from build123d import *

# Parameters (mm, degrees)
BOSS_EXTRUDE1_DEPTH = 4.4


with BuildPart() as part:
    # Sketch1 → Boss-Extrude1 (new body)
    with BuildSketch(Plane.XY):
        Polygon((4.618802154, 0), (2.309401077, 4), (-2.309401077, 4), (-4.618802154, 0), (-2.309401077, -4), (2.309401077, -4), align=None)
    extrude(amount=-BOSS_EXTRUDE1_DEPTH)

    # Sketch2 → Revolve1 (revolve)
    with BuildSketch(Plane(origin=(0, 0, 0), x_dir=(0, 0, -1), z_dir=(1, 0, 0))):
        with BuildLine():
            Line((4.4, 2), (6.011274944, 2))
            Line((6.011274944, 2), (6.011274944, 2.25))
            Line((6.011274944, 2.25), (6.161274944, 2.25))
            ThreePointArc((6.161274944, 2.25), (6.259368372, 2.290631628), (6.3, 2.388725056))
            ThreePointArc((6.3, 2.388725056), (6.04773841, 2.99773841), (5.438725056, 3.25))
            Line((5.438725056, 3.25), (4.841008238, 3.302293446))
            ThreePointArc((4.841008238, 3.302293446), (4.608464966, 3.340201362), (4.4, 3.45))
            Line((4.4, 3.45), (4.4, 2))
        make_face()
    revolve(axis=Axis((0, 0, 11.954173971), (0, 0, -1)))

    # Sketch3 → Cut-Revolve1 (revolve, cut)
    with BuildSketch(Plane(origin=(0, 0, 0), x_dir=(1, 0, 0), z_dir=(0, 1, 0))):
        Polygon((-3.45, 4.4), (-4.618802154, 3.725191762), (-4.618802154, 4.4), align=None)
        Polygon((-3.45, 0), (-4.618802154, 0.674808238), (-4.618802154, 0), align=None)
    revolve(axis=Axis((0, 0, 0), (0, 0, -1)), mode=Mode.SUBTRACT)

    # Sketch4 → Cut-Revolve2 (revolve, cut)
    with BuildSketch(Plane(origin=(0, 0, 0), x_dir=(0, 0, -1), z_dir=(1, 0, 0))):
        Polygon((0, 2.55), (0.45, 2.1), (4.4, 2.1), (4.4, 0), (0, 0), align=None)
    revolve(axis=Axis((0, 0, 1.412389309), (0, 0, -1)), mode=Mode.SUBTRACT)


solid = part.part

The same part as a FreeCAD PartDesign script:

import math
import FreeCAD as App
import Part
import Sketcher

V = App.Vector
Q = App.Units.Quantity

doc = App.newDocument("Part")
body = doc.addObject("PartDesign::Body", "Body")

sketch1 = body.newObject("Sketcher::SketchObject", "Sketch")
sketch1.AttachmentSupport = (doc.getObject("XY_Plane"), [""])
sketch1.MapMode = "FlatFace"
sketch1.addGeometry([
    Part.LineSegment(V(4.6, 0, 0), V(2.3, 4, 0)),
    Part.LineSegment(V(2.3, 4, 0), V(-2.3, 4, 0)),
    Part.LineSegment(V(-2.3, 4, 0), V(-4.6, 0, 0)),
    Part.LineSegment(V(-4.6, 0, 0), V(-2.3, -4, 0)),
    Part.LineSegment(V(-2.3, -4, 0), V(2.3, -4, 0)),
    Part.LineSegment(V(2.3, -4, 0), V(4.6, 0, 0)),
], False)
sketch1.addConstraint([
    Sketcher.Constraint("Coincident", 0, 2, 1, 1),
    Sketcher.Constraint("Coincident", 1, 2, 2, 1),
    Sketcher.Constraint("Coincident", 2, 2, 3, 1),
    Sketcher.Constraint("Coincident", 3, 2, 4, 1),
    Sketcher.Constraint("Coincident", 4, 2, 5, 1),
    Sketcher.Constraint("Coincident", 5, 2, 0, 1),
    Sketcher.Constraint("Horizontal", 1),
    Sketcher.Constraint("Horizontal", 4),
    Sketcher.Constraint("Symmetric", 0, 2, 3, 2, -1, 1),
    Sketcher.Constraint("Symmetric", 2, 2, 5, 2, -1, 1),
    Sketcher.Constraint("PointOnObject", 2, 2, -1),
    Sketcher.Constraint("Parallel", 2, 5),
    Sketcher.Constraint("Vertical", 1, 2, 3, 2),
    Sketcher.Constraint("Angle", 0, Q("120 deg")),
    Sketcher.Constraint("DistanceY", -1, 1, 0, 2, Q("4 mm")),
    Sketcher.Constraint("DistanceX", -1, 1, 0, 2, Q("2.309401 mm")),
])
pad1 = body.newObject("PartDesign::Pad", "Pad")
pad1.Profile = sketch1
pad1.Length = 4.4
pad1.Reversed = True

sketch2 = body.newObject("Sketcher::SketchObject", "Sketch001")
sketch2.AttachmentSupport = (doc.getObject("YZ_Plane"), [""])
sketch2.MapMode = "FlatFace"
sketch2.addGeometry([
    Part.LineSegment(V(2, -4.4, 0), V(2, -6.01, 0)),
    Part.LineSegment(V(2, -6.01, 0), V(2.25, -6.01, 0)),
    Part.LineSegment(V(2.25, -6.01, 0), V(2.25, -6.16, 0)),
    Part.ArcOfCircle(Part.Circle(V(2.39, -6.16, 0), V(0, 0, 1), 0.14), math.radians(180), math.radians(270)),
    Part.ArcOfCircle(Part.Circle(V(2.39, -5.44, 0), V(0, 0, 1), 0.86), math.radians(-90), math.radians(0)),
    Part.LineSegment(V(3.25, -5.44, 0), V(3.3, -4.84, 0)),
    Part.ArcOfCircle(Part.Circle(V(4.03, -4.84, 0), V(0, 0, 1), 0.73), math.radians(143), math.radians(180)),
    Part.LineSegment(V(3.45, -4.4, 0), V(2, -4.4, 0)),
], False)
sketch2.addConstraint([
    Sketcher.Constraint("Coincident", 0, 2, 1, 1),
    Sketcher.Constraint("Coincident", 1, 2, 2, 1),
    Sketcher.Constraint("Tangent", 2, 2, 3, 1),
    Sketcher.Constraint("Tangent", 3, 2, 4, 1),
    Sketcher.Constraint("Coincident", 4, 2, 5, 1),
    Sketcher.Constraint("Coincident", 5, 2, 6, 2),
    Sketcher.Constraint("Coincident", 6, 1, 7, 1),
    Sketcher.Constraint("Coincident", 7, 2, 0, 1),
    Sketcher.Constraint("Vertical", 0),
    Sketcher.Constraint("Horizontal", 1),
    Sketcher.Constraint("Vertical", 2),
    Sketcher.Constraint("Horizontal", 7),
    Sketcher.Constraint("Horizontal", 6, 3, 5, 2),
    Sketcher.Constraint("Vertical", 3, 3, 4, 3),
    Sketcher.Constraint("Angle", 5, Q("85 deg")),
    Sketcher.Constraint("DistanceX", -1, 1, 0, 2, Q("2 mm")),
    Sketcher.Constraint("DistanceX", 1, 2, 4, 2, Q("1 mm")),
    Sketcher.Constraint("Distance", 5, Q("0.6 mm")),
    Sketcher.Constraint("DistanceX", 1, 1, 1, 2, Q("0.25 mm")),
    Sketcher.Constraint("DistanceX", 7, 2, 7, 1, Q("1.45 mm")),
    Sketcher.Constraint("DistanceY", 2, 2, 2, 1, Q("0.15 mm")),
    Sketcher.Constraint("DistanceY", 3, 2, -1, 1, Q("6.3 mm")),
    Sketcher.Constraint("DistanceY", 6, 1, -1, 1, Q("4.4 mm")),
    Sketcher.Constraint("Radius", 3, Q("0.138725 mm")),
    Sketcher.Constraint("Radius", 6, Q("0.732214 mm")),
])
revolution = body.newObject("PartDesign::Revolution", "Revolution")
revolution.Profile = sketch2
revolution.ReferenceAxis = (sketch2, ["V_Axis"])
revolution.Angle = 360

sketch3 = body.newObject("Sketcher::SketchObject", "Sketch002")
sketch3.AttachmentSupport = (doc.getObject("XZ_Plane"), [""])
sketch3.MapMode = "FlatFace"
sketch3.addGeometry([
    Part.LineSegment(V(-4.6, -3.7, 0), V(-3.5, -4.4, 0)),
    Part.LineSegment(V(-3.5, -4.4, 0), V(-4.6, -4.4, 0)),
    Part.LineSegment(V(-4.6, -4.4, 0), V(-4.6, -3.7, 0)),
    Part.LineSegment(V(-3.5, 0, 0), V(-4.6, -0.7, 0)),
    Part.LineSegment(V(-4.6, -0.7, 0), V(-4.6, 0, 0)),
    Part.LineSegment(V(-4.6, 0, 0), V(-3.5, 0, 0)),
], False)
sketch3.addConstraint([
    Sketcher.Constraint("Coincident", 0, 2, 1, 1),
    Sketcher.Constraint("Coincident", 1, 2, 2, 1),
    Sketcher.Constraint("Coincident", 2, 2, 0, 1),
    Sketcher.Constraint("Coincident", 3, 2, 4, 1),
    Sketcher.Constraint("Coincident", 4, 2, 5, 1),
    Sketcher.Constraint("Coincident", 5, 2, 3, 1),
    Sketcher.Constraint("Horizontal", 1),
    Sketcher.Constraint("Vertical", 2),
    Sketcher.Constraint("Vertical", 4),
    Sketcher.Constraint("Horizontal", 5),
    Sketcher.Constraint("PointOnObject", 4, 2, -1),
    Sketcher.Constraint("Vertical", 2, 2, 3, 2),
    Sketcher.Constraint("Vertical", 0, 2, 5, 2),
    Sketcher.Constraint("Equal", 2, 4),
    Sketcher.Constraint("Angle", 0, Q("-30 deg")),
    Sketcher.Constraint("DistanceY", 0, 2, -1, 1, Q("4.4 mm")),
    Sketcher.Constraint("DistanceX", 0, 2, -1, 1, Q("3.45 mm")),
    Sketcher.Constraint("DistanceY", 2, 1, 2, 2, Q("0.674808 mm")),
])
groove = body.newObject("PartDesign::Groove", "Groove")
groove.Profile = sketch3
groove.ReferenceAxis = (sketch3, ["V_Axis"])
groove.Angle = 360

sketch4 = body.newObject("Sketcher::SketchObject", "Sketch003")
sketch4.AttachmentSupport = (doc.getObject("YZ_Plane"), [""])
sketch4.MapMode = "FlatFace"
sketch4.addGeometry([
    Part.LineSegment(V(2.1, -0.5, 0), V(2.5, 0, 0)),
    Part.LineSegment(V(2.5, 0, 0), V(0, 0, 0)),
    Part.LineSegment(V(0, 0, 0), V(0, -4.4, 0)),
    Part.LineSegment(V(0, -4.4, 0), V(2.1, -4.4, 0)),
    Part.LineSegment(V(2.1, -4.4, 0), V(2.1, -0.5, 0)),
], False)
sketch4.addConstraint([
    Sketcher.Constraint("Coincident", 0, 2, 1, 1),
    Sketcher.Constraint("Coincident", 1, 2, 2, 1),
    Sketcher.Constraint("Coincident", 2, 2, 3, 1),
    Sketcher.Constraint("Coincident", 3, 2, 4, 1),
    Sketcher.Constraint("Coincident", 4, 2, 0, 1),
    Sketcher.Constraint("Horizontal", 1),
    Sketcher.Constraint("Vertical", 2),
    Sketcher.Constraint("Horizontal", 3),
    Sketcher.Constraint("Vertical", 4),
    Sketcher.Constraint("Coincident", 1, 2, -1, 1),
    Sketcher.Constraint("Angle", 0, Q("45 deg")),
    Sketcher.Constraint("DistanceX", 3, 1, 3, 2, Q("2.1 mm")),
    Sketcher.Constraint("DistanceY", 2, 2, 2, 1, Q("4.4 mm")),
    Sketcher.Constraint("DistanceX", 1, 2, 1, 1, Q("2.55 mm")),
])
groove2 = body.newObject("PartDesign::Groove", "Groove001")
groove2.Profile = sketch4
groove2.ReferenceAxis = (sketch4, ["V_Axis"])
groove2.Angle = 360

doc.recompute()
